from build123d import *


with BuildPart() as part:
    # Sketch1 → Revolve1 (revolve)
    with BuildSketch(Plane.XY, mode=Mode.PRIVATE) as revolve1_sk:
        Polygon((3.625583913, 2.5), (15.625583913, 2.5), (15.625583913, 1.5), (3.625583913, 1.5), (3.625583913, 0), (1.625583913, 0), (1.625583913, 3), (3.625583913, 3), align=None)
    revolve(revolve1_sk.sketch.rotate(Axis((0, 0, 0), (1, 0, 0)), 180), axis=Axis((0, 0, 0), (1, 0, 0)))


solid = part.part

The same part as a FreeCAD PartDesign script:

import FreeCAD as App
import Part
import Sketcher
from FreeCAD import Vector
Q = App.Units.Quantity


def add_polygon(sketch, points):
    """Adds a closed chain of lines whose ends are joined by coincident constraints."""
    first, n = sketch.GeometryCount, len(points)
    for a, b in zip(points, points[1:] + points[:1]):
        sketch.addGeometry(Part.LineSegment(App.Vector(*a, 0), App.Vector(*b, 0)), False)
    for i in range(n):
        sketch.addConstraint(Sketcher.Constraint("Coincident", first + i, 2, first + (i + 1) % n, 1))

doc = App.newDocument("Part")
body = doc.addObject("PartDesign::Body", "Body")

# Sketch on XY plane
sketch1 = body.newObject("Sketcher::SketchObject", "Sketch")
sketch1.AttachmentSupport = (doc.getObject("XY_Plane"), [""])
sketch1.MapMode = "FlatFace"
add_polygon(sketch1, [(15.6, 2.5), (3.6, 2.5), (3.6, 3), (1.6, 3), (1.6, 0), (3.6, 0), (3.6, 1.5), (15.6, 1.5)])  # lines 0-7
sketch1.addConstraint([
    Sketcher.Constraint("Horizontal", 0),
    Sketcher.Constraint("Vertical", 1),
    Sketcher.Constraint("Horizontal", 2),
    Sketcher.Constraint("Vertical", 3),
    Sketcher.Constraint("Horizontal", 4),
    Sketcher.Constraint("Vertical", 5),
    Sketcher.Constraint("Horizontal", 6),
    Sketcher.Constraint("Vertical", 7),
    Sketcher.Constraint("PointOnObject", 3, 2, -1),
    Sketcher.Constraint("Vertical", 1, 2, 4, 2),
    Sketcher.Constraint("DistanceX", 0, 2, 0, 1, Q("12 mm")),
    Sketcher.Constraint("DistanceX", 2, 2, 2, 1, Q("2 mm")),
    Sketcher.Constraint("DistanceY", 3, 2, 3, 1, Q("3 mm")),
    Sketcher.Constraint("DistanceY", 7, 1, 7, 2, Q("1 mm")),
    Sketcher.Constraint("DistanceY", 1, 1, 1, 2, Q("0.5 mm")),
    Sketcher.Constraint("DistanceX", -1, 1, 0, 2, Q("3.625584 mm")),
])
revolution = body.newObject("PartDesign::Revolution", "Revolution")
revolution.Profile = sketch1
revolution.ReferenceAxis = (sketch1, ["H_Axis"])
revolution.Angle = 360

doc.recompute()
